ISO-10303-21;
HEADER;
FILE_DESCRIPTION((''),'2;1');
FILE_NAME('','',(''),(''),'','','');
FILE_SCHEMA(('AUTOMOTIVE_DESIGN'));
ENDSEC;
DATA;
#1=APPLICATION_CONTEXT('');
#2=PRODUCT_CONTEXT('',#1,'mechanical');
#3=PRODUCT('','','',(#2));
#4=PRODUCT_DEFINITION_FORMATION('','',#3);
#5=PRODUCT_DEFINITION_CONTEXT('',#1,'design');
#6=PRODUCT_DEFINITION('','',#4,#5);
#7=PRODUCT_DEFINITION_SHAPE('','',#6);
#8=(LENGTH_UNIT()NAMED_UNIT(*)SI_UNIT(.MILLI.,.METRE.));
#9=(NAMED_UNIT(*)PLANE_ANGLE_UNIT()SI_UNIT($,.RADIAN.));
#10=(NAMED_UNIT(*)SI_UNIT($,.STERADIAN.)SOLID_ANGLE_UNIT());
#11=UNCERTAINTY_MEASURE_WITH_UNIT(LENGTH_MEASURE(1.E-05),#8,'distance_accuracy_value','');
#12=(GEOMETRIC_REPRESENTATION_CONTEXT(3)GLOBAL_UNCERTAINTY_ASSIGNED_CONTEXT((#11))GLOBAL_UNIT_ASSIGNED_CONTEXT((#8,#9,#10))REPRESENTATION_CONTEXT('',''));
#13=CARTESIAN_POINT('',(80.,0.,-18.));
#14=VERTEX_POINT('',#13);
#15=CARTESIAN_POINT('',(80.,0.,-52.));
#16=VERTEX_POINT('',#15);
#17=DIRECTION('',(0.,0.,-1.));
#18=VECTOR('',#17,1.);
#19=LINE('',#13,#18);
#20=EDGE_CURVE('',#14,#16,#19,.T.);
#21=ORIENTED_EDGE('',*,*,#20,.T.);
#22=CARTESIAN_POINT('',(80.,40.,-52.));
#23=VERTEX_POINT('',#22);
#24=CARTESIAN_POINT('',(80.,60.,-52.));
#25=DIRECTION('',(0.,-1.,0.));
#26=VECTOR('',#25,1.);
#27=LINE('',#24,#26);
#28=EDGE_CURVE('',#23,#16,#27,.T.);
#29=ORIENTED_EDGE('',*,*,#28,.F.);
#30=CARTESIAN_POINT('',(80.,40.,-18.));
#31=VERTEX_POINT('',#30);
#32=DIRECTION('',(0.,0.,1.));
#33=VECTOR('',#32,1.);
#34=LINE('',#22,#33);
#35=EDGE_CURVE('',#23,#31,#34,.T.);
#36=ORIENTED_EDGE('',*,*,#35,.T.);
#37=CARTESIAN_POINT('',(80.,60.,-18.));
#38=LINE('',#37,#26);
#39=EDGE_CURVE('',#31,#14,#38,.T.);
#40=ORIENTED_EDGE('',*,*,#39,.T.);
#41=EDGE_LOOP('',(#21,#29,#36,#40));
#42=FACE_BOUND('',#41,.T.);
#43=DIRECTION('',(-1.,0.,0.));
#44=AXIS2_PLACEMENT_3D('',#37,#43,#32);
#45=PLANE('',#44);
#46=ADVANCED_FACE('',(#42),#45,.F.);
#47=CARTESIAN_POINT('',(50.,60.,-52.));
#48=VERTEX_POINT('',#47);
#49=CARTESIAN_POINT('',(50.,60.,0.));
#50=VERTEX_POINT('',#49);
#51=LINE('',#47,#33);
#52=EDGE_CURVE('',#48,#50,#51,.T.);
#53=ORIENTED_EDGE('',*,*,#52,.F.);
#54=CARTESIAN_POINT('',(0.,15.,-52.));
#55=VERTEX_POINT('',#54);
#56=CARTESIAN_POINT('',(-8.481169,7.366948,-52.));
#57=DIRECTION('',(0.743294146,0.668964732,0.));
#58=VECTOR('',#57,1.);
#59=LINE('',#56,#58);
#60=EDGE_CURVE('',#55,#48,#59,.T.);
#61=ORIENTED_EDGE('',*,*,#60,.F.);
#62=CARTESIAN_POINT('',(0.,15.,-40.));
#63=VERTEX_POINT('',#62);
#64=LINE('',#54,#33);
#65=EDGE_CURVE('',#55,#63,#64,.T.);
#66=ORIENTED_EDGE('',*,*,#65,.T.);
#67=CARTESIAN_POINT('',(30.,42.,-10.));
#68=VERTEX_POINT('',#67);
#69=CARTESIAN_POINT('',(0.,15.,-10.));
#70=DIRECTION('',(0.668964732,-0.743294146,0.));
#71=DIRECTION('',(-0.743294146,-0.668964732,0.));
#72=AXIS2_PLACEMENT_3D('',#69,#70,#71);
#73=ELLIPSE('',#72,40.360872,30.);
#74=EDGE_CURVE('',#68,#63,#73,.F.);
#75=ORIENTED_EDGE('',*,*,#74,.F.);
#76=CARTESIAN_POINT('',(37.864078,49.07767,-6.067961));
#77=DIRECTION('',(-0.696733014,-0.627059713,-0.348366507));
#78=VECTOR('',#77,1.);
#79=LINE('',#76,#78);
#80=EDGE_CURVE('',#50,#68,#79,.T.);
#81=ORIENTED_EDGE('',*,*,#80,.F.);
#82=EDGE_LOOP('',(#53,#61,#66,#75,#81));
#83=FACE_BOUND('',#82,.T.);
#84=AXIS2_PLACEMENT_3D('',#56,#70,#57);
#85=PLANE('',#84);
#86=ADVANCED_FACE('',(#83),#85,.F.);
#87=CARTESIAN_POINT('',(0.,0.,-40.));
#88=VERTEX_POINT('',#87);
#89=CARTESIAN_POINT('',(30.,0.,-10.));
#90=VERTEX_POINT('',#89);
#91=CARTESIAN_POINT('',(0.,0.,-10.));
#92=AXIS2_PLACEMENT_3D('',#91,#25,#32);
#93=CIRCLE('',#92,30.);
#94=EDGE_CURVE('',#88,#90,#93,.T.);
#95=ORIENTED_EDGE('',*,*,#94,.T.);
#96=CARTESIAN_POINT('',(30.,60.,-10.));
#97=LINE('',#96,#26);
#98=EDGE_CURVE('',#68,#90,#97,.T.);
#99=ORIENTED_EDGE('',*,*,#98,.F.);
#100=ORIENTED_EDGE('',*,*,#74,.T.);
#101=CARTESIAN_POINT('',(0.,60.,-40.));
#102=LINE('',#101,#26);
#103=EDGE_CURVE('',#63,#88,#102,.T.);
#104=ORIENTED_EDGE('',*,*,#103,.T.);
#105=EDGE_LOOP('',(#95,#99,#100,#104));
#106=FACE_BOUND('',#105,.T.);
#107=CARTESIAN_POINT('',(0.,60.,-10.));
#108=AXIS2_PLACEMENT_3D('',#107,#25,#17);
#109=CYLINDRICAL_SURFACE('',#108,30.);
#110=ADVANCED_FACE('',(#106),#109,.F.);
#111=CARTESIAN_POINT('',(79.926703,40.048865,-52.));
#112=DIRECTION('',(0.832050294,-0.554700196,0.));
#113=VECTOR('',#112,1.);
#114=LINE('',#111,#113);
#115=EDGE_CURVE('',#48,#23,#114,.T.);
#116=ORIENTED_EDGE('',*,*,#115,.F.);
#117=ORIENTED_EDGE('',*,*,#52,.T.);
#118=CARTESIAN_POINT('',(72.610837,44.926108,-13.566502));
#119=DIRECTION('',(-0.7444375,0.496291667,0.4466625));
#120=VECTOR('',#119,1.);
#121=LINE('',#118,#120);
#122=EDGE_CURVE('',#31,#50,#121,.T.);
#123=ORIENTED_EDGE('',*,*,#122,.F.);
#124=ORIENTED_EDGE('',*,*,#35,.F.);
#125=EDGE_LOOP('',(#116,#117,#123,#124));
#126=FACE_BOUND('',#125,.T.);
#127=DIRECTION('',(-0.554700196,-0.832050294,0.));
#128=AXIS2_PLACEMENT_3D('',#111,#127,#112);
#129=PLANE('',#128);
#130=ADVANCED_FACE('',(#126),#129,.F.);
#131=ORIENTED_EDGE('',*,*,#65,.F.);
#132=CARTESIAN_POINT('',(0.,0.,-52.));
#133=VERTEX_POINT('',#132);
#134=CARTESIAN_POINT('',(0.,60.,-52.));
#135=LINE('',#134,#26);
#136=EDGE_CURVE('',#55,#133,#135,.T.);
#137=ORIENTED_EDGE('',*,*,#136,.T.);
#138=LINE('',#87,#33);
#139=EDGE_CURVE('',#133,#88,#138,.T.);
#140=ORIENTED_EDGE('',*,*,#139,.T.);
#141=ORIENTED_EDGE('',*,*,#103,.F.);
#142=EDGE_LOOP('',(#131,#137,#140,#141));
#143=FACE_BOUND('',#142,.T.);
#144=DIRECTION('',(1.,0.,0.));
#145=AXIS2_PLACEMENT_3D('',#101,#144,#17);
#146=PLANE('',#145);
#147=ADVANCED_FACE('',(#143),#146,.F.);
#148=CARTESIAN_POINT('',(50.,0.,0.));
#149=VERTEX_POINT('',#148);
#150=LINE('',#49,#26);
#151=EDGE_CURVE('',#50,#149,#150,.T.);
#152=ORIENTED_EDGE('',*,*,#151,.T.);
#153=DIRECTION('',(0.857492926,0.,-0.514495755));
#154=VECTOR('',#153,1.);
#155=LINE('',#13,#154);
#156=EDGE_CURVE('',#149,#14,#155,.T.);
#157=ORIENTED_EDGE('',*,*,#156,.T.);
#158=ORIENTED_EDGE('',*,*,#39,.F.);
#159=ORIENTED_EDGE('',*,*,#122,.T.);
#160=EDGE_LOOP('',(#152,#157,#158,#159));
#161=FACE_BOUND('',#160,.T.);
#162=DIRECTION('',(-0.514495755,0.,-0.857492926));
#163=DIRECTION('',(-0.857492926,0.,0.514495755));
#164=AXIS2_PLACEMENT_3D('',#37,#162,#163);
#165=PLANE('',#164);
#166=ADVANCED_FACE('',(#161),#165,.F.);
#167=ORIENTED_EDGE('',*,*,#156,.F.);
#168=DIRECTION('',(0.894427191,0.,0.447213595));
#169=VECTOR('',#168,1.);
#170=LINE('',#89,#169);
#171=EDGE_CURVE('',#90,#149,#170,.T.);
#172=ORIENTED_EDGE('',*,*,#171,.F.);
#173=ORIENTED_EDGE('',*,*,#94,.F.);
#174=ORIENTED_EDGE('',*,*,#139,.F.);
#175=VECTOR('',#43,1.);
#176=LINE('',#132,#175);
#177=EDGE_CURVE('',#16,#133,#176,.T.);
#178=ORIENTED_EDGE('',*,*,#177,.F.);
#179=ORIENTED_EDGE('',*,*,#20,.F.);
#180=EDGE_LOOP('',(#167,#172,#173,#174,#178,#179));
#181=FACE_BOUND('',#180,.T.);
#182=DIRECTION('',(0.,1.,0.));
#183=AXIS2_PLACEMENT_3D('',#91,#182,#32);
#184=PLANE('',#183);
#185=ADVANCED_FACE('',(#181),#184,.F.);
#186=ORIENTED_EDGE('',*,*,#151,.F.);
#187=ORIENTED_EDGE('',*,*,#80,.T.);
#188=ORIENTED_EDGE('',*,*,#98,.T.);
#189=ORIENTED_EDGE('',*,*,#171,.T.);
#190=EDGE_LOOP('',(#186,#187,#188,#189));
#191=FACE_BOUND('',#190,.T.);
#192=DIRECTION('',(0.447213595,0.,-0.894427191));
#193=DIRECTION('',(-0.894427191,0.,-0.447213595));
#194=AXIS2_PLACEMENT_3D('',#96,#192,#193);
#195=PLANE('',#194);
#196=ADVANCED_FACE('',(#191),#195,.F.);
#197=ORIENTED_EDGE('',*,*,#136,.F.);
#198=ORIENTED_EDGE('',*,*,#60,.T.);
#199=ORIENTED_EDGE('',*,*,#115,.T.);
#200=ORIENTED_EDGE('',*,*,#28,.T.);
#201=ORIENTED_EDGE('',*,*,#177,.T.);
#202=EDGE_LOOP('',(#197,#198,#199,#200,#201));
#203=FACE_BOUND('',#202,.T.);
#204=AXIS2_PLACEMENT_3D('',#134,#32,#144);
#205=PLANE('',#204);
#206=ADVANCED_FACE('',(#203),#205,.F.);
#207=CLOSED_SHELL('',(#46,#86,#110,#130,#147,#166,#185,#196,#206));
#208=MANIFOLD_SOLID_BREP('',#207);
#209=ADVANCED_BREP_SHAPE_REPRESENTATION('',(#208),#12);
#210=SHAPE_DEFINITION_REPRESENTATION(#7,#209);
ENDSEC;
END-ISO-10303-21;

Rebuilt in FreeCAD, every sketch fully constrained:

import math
import FreeCAD as App
import Part
import Sketcher
from FreeCAD import Vector
Q = App.Units.Quantity

doc = App.newDocument("Part")
body = doc.addObject("PartDesign::Body", "Body")

# Sketch on XZ plane
sketch1 = doc.addObject("Sketcher::SketchObject", "Sketch")
body.addObject(sketch1)
sketch1.AttachmentSupport = (doc.XZ_Plane, [""])
sketch1.MapMode = "FlatFace"
sketch1.addGeometry([
    Part.LineSegment(Vector(0, -52, 0), Vector(0, -40, 0)),  # 0
    Part.ArcOfCircle(Part.Circle(Vector(0, -10, 0), Vector(0, 0, 1), 30), math.radians(-90), math.radians(0)),  # 1
    Part.LineSegment(Vector(30, -10, 0), Vector(50, 0, 0)),  # 2
    Part.LineSegment(Vector(50, 0, 0), Vector(80, -18, 0)),  # 3
    Part.LineSegment(Vector(80, -18, 0), Vector(80, -52, 0)),  # 4
    Part.LineSegment(Vector(80, -52, 0), Vector(0, -52, 0)),  # 5
], False)
sketch1.addConstraint([
    Sketcher.Constraint("Coincident", 0, 2, 1, 1),
    Sketcher.Constraint("Coincident", 1, 2, 2, 1),
    Sketcher.Constraint("Coincident", 2, 2, 3, 1),
    Sketcher.Constraint("Coincident", 3, 2, 4, 1),
    Sketcher.Constraint("Coincident", 4, 2, 5, 1),
    Sketcher.Constraint("Coincident", 5, 2, 0, 1),
    Sketcher.Constraint("Vertical", 0),
    Sketcher.Constraint("Vertical", 4),
    Sketcher.Constraint("Horizontal", 5),
    Sketcher.Constraint("PointOnObject", 1, 3, -2),
    Sketcher.Constraint("PointOnObject", 0, 2, -2),
    Sketcher.Constraint("PointOnObject", 2, 2, -1),
    Sketcher.Constraint("Radius", 1, Q("30 mm")),
    Sketcher.Constraint("DistanceX", 5, 2, 5, 1, Q("80 mm")),
    Sketcher.Constraint("DistanceY", 0, 1, 0, 2, Q("12 mm")),
    Sketcher.Constraint("DistanceY", 4, 2, 4, 1, Q("34 mm")),
    Sketcher.Constraint("DistanceY", 1, 3, -1, 1, Q("10 mm")),
    Sketcher.Constraint("DistanceY", 1, 2, -1, 1, Q("10 mm")),
    Sketcher.Constraint("DistanceX", -1, 1, 2, 2, Q("50 mm")),
])
pad1 = doc.addObject("PartDesign::Pad", "Pad")
body.addObject(pad1)
pad1.Profile = sketch1
pad1.Length = 60
pad1.Reversed = True

# Sketch on XY plane
sketch2 = doc.addObject("Sketcher::SketchObject", "Sketch001")
body.addObject(sketch2)
sketch2.AttachmentSupport = (doc.XY_Plane, [""])
sketch2.MapMode = "FlatFace"
sketch2.addGeometry([
    Part.LineSegment(Vector(0, 60, 0), Vector(0, 15, 0)),  # 0
    Part.LineSegment(Vector(0, 15, 0), Vector(50, 60, 0)),  # 1
    Part.LineSegment(Vector(50, 60, 0), Vector(0, 60, 0)),  # 2
    Part.LineSegment(Vector(80, 40, 0), Vector(80, 60, 0)),  # 3
    Part.LineSegment(Vector(80, 60, 0), Vector(50, 60, 0)),  # 4
    Part.LineSegment(Vector(50, 60, 0), Vector(80, 40, 0)),  # 5
], False)
sketch2.addConstraint([
    Sketcher.Constraint("Coincident", 0, 2, 1, 1),
    Sketcher.Constraint("Coincident", 1, 2, 2, 1),
    Sketcher.Constraint("Coincident", 2, 2, 0, 1),
    Sketcher.Constraint("Coincident", 3, 2, 4, 1),
    Sketcher.Constraint("Coincident", 4, 2, 5, 1),
    Sketcher.Constraint("Coincident", 5, 2, 3, 1),
    Sketcher.Constraint("Vertical", 0),
    Sketcher.Constraint("Horizontal", 2),
    Sketcher.Constraint("Vertical", 3),
    Sketcher.Constraint("Horizontal", 4),
    Sketcher.Constraint("Coincident", 4, 2, 1, 2),
    Sketcher.Constraint("PointOnObject", 0, 2, -2),
    Sketcher.Constraint("DistanceX", 2, 2, 2, 1, Q("50 mm")),
    Sketcher.Constraint("DistanceX", 4, 2, 4, 1, Q("30 mm")),
    Sketcher.Constraint("DistanceY", 0, 2, 0, 1, Q("45 mm")),
    Sketcher.Constraint("DistanceY", 3, 1, 3, 2, Q("20 mm")),
    Sketcher.Constraint("DistanceY", -1, 1, 0, 2, Q("15 mm")),
])
pocket1 = doc.addObject("PartDesign::Pocket", "Pocket")
body.addObject(pocket1)
pocket1.Profile = sketch2
pocket1.Type = "ThroughAll"

doc.recompute()
